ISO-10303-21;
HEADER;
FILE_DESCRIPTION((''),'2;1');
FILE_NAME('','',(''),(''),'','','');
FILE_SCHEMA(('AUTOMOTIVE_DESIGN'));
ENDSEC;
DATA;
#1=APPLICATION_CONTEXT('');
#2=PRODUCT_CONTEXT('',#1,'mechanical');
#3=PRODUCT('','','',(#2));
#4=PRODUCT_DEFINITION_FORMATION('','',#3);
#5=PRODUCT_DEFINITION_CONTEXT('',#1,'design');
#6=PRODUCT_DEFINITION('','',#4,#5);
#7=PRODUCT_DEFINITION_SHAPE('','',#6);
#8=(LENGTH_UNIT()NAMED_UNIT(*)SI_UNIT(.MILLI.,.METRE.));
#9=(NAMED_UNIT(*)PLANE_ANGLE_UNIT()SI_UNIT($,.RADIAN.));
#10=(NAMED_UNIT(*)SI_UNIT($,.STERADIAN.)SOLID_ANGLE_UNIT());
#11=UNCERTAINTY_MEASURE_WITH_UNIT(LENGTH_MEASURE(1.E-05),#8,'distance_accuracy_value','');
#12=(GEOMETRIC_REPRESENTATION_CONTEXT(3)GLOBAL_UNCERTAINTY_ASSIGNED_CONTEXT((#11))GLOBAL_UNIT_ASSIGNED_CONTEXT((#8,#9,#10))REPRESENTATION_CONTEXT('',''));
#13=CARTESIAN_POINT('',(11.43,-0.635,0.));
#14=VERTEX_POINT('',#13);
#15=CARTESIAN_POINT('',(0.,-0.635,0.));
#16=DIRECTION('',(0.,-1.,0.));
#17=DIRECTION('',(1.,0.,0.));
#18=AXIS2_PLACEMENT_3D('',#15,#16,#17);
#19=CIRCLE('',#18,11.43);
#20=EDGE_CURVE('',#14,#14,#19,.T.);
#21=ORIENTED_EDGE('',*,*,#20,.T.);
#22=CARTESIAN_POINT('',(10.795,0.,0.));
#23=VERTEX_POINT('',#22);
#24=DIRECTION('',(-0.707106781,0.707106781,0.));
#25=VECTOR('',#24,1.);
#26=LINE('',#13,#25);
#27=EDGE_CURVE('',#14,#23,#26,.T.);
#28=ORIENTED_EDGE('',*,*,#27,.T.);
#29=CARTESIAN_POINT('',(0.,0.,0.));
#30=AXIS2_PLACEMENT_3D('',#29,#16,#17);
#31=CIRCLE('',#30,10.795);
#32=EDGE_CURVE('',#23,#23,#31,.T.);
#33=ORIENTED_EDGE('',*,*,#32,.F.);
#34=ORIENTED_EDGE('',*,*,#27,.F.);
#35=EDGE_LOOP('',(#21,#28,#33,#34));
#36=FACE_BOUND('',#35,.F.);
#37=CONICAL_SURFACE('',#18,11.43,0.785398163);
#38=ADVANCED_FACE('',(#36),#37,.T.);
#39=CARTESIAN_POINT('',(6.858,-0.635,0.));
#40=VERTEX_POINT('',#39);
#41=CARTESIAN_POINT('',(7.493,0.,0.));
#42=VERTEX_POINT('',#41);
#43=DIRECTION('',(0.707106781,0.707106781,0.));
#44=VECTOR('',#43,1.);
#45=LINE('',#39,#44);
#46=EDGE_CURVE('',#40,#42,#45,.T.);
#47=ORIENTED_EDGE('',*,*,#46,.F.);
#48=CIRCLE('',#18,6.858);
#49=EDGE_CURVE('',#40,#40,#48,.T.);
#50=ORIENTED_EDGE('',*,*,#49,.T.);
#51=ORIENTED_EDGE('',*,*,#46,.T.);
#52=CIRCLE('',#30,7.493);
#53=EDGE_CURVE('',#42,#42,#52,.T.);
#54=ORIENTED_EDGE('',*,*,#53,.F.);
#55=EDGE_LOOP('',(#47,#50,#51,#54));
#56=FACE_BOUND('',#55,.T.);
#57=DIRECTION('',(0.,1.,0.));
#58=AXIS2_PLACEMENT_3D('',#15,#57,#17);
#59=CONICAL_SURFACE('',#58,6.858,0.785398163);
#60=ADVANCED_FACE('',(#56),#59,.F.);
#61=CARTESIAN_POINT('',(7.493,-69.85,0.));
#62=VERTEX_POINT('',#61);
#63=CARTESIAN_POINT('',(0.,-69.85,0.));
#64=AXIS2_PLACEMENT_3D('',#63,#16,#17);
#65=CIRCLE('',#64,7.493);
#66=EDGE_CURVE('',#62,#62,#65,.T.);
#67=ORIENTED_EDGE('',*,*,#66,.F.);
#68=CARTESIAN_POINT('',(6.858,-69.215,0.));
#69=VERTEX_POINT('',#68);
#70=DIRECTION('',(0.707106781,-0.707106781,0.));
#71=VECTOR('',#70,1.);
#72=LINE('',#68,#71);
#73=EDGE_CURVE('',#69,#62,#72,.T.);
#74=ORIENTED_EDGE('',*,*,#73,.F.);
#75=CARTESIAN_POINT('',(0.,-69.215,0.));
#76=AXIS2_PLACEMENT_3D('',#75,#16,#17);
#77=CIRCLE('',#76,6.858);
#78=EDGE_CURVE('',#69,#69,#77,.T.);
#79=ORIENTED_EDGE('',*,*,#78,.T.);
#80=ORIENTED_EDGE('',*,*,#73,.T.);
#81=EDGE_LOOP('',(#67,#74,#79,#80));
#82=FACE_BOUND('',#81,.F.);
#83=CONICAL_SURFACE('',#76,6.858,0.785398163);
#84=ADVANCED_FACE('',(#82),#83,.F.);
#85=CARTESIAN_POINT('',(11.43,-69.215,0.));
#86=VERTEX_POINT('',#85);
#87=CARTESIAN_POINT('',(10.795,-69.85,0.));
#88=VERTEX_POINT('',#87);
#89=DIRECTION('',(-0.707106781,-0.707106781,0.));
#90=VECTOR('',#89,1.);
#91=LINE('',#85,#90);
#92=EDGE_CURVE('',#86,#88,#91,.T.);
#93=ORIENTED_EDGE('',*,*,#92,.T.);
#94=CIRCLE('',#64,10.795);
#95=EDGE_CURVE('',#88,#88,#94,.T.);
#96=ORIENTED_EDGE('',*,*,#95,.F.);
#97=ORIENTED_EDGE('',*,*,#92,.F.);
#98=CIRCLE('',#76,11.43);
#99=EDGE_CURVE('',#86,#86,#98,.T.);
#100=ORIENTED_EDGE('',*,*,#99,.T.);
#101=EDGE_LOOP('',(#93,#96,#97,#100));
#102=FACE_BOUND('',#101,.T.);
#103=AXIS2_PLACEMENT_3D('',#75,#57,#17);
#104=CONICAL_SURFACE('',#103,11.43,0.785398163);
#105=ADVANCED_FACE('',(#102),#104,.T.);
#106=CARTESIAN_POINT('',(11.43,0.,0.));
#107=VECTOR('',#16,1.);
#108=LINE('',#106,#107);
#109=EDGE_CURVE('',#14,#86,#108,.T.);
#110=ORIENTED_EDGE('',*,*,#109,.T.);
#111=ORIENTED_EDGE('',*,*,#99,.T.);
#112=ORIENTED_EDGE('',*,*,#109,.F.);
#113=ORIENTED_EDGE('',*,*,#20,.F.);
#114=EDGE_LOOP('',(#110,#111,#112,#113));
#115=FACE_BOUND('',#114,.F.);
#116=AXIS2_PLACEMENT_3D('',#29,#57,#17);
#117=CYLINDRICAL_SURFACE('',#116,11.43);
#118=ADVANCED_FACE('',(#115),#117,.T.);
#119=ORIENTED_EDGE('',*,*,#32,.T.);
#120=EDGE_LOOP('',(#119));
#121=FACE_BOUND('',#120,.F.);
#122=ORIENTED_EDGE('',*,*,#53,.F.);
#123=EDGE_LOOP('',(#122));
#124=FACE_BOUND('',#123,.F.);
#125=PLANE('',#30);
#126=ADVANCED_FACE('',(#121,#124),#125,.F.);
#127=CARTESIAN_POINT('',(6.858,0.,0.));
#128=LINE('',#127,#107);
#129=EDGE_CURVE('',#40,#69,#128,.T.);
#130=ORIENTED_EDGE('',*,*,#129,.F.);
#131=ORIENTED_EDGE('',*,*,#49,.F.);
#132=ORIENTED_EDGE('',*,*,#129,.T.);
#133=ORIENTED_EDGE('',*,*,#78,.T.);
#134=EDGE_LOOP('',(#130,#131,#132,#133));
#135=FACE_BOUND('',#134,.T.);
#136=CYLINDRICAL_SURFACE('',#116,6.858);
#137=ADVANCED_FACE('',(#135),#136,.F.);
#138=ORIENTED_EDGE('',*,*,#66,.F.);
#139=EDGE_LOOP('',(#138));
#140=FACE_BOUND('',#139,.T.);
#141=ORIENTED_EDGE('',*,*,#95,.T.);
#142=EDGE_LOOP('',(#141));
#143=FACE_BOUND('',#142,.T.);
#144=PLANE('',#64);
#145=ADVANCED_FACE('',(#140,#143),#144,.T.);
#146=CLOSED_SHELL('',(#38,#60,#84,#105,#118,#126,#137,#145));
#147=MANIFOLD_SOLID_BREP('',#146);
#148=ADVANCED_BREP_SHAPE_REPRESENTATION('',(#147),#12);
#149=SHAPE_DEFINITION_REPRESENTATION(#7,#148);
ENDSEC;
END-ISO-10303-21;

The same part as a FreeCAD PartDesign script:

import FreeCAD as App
import Part
import Sketcher

V = App.Vector
Q = App.Units.Quantity

doc = App.newDocument("Part")
body = doc.addObject("PartDesign::Body", "Body")

sketch1 = doc.addObject("Sketcher::SketchObject", "Sketch")
body.addObject(sketch1)
sketch1.AttachmentSupport = (doc.XZ_Plane, [""])
sketch1.MapMode = "FlatFace"
sketch1.addGeometry([
    Part.Circle(V(0, 0, 0), V(0, 0, 1), 11),
    Part.Circle(V(0, 0, 0), V(0, 0, 1), 7),
], False)
sketch1.addConstraint([
    Sketcher.Constraint("Coincident", 0, 3, -1, 1),
    Sketcher.Constraint("Coincident", 1, 3, -1, 1),
    Sketcher.Constraint("Diameter", 0, Q("0.9 in")),
    Sketcher.Constraint("Diameter", 1, Q("0.54 in")),
])
pad1 = doc.addObject("PartDesign::Pad", "Pad")
body.addObject(pad1)
pad1.Profile = sketch1
pad1.Length = Q("2.75 in")
doc.recompute()

chamfer = doc.addObject("PartDesign::Chamfer", "Chamfer")
body.addObject(chamfer)
chamfer.Base = (pad1, ["Edge1"])
chamfer.UseAllEdges = True
chamfer.Size = Q("0.025 in")

doc.recompute()
